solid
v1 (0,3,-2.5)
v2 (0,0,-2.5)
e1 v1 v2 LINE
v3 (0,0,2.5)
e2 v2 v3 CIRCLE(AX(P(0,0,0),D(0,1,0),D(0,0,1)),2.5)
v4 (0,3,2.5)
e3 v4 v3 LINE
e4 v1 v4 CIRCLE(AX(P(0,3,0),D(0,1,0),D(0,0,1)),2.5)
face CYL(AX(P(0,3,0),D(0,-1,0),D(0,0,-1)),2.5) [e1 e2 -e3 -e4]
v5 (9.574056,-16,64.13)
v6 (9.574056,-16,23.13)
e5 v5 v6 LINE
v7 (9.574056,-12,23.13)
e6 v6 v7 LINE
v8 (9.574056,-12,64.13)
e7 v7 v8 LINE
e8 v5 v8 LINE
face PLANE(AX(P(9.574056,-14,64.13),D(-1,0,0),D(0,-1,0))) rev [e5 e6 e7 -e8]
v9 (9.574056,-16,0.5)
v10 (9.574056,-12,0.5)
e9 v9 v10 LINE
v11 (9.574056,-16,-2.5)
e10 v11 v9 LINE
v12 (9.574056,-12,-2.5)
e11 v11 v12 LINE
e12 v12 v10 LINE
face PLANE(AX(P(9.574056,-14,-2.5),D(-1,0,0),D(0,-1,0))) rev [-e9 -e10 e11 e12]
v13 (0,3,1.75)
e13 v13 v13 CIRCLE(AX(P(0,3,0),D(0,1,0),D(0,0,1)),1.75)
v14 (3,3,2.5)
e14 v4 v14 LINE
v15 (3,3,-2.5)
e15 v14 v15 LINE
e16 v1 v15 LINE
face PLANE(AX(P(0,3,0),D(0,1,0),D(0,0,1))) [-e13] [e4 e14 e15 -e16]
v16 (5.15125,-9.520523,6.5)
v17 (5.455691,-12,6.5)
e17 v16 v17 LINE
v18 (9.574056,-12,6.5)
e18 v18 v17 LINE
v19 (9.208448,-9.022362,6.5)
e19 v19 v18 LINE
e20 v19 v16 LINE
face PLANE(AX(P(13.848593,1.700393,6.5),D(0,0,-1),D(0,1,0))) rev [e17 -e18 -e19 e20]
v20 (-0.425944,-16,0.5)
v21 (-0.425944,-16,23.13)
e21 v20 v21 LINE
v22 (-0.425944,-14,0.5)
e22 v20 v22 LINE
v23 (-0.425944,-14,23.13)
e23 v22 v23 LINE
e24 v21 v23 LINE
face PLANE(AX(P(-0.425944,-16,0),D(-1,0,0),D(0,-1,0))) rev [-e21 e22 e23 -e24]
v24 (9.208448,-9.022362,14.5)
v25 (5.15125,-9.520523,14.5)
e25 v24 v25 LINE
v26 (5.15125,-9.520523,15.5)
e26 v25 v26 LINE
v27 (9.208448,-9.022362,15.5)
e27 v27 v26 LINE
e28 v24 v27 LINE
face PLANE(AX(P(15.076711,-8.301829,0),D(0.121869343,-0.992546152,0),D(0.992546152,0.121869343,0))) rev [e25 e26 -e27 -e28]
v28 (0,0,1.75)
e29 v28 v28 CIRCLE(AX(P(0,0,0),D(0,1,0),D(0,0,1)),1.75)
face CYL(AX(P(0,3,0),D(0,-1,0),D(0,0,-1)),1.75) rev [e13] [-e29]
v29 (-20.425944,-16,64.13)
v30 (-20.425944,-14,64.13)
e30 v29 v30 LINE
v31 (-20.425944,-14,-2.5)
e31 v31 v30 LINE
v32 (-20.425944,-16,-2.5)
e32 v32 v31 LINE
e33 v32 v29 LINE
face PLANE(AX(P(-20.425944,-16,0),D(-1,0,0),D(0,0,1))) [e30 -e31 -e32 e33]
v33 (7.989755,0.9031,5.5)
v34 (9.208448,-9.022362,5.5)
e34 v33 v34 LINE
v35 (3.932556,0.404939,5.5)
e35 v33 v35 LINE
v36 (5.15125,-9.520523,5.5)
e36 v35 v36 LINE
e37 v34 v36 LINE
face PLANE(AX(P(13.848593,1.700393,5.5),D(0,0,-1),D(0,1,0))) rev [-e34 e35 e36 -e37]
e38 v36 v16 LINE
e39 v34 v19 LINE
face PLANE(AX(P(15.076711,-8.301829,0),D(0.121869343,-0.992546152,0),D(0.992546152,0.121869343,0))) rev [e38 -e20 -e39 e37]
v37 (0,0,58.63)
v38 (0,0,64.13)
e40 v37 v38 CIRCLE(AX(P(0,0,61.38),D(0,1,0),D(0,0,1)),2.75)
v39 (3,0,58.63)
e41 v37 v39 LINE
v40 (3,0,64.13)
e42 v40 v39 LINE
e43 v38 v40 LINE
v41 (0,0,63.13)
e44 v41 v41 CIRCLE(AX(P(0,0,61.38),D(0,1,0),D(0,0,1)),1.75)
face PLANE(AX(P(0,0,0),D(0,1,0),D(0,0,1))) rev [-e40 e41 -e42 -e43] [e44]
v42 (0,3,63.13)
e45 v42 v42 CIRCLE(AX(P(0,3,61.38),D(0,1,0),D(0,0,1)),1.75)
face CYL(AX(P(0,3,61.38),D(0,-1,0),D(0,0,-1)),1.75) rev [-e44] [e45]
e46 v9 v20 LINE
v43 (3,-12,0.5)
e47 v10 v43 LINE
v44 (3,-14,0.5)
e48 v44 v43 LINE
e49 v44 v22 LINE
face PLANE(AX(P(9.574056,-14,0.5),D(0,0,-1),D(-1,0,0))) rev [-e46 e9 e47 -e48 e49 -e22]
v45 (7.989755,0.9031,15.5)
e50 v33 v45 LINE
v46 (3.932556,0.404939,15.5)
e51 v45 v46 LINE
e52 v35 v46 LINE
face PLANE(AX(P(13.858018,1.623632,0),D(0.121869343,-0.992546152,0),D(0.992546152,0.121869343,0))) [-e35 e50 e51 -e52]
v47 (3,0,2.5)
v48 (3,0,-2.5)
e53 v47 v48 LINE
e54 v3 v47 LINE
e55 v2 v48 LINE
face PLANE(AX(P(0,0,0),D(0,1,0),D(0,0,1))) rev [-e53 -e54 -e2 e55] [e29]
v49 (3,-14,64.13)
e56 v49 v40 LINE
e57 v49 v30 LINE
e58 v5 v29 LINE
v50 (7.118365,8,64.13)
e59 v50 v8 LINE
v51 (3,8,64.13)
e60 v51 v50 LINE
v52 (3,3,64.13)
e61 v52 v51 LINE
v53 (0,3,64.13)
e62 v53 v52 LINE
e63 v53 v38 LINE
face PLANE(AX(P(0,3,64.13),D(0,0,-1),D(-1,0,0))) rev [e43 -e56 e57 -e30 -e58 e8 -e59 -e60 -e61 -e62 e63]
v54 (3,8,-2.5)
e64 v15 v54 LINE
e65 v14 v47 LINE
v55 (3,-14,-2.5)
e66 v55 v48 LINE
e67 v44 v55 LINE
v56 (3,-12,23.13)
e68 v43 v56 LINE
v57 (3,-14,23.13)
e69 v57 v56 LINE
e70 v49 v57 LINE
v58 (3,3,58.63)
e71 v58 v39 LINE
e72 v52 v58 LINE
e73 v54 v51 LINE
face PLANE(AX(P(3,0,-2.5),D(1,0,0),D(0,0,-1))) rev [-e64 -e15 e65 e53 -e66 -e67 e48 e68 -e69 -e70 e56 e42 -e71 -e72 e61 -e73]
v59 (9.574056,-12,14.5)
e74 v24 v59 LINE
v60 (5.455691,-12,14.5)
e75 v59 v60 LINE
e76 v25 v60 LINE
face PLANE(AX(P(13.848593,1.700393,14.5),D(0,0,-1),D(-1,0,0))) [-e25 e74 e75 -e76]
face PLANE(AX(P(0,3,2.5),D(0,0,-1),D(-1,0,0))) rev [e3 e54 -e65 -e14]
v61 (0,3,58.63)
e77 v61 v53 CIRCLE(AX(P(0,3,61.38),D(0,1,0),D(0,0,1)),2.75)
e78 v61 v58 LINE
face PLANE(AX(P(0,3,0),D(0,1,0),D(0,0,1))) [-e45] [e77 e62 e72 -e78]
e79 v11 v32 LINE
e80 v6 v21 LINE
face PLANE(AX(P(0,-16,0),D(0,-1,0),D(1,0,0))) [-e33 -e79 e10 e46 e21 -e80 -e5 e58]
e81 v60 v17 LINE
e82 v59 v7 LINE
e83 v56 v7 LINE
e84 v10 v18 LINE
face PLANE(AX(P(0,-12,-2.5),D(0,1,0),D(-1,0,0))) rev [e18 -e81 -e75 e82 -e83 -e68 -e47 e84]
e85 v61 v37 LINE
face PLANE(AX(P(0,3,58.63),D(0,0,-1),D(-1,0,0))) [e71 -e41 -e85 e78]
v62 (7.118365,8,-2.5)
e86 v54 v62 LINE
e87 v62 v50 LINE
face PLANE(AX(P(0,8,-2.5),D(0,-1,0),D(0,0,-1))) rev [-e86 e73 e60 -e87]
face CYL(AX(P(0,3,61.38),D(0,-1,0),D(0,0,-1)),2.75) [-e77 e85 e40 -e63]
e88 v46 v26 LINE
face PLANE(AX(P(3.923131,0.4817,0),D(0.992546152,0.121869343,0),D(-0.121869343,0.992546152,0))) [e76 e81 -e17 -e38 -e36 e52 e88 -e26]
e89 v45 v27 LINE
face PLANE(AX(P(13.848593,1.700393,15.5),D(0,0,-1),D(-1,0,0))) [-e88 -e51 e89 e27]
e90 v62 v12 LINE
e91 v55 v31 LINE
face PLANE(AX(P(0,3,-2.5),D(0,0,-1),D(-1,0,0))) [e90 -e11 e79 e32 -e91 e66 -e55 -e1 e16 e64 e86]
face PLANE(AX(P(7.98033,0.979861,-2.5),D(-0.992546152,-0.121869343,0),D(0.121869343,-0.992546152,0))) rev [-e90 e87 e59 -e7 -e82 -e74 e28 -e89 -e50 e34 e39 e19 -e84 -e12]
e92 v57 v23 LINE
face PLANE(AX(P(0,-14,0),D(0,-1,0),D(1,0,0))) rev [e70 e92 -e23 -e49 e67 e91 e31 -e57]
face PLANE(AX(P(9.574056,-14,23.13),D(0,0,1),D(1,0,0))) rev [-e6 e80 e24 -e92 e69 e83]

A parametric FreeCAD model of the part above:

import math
import FreeCAD as App
import Part
import Sketcher
Q = App.Units.Quantity

doc = App.newDocument("Part")
body = doc.addObject("PartDesign::Body", "Body")

sketch1 = body.newObject("Sketcher::SketchObject", "Sketch")
sketch1.AttachmentSupport = (doc.getObject("XZ_Plane"), [""])
sketch1.MapMode = "FlatFace"
sketch1.addGeometry(Part.ArcOfCircle(Part.Circle(App.Vector(0, 61.38, 0), App.Vector(0, 0, 1), 2.75), math.radians(90), math.radians(270)), False)
sketch1.addGeometry(Part.LineSegment(App.Vector(0, 64.13, 0), App.Vector(8, 64.13, 0)), False)
sketch1.addGeometry(Part.LineSegment(App.Vector(8, 64.13, 0), App.Vector(8, -2.5, 0)), False)
sketch1.addGeometry(Part.LineSegment(App.Vector(8, -2.5, 0), App.Vector(0, -2.5, 0)), False)
sketch1.addGeometry(Part.ArcOfCircle(Part.Circle(App.Vector(0, 0, 0), App.Vector(0, 0, 1), 2.5), math.radians(90), math.radians(270)), False)
sketch1.addGeometry(Part.LineSegment(App.Vector(0, 2.5, 0), App.Vector(5, 2.5, 0)), False)
sketch1.addGeometry(Part.LineSegment(App.Vector(5, 2.5, 0), App.Vector(5, 58.63, 0)), False)
sketch1.addGeometry(Part.LineSegment(App.Vector(5, 58.63, 0), App.Vector(0, 58.63, 0)), False)
sketch1.addGeometry(Part.ArcOfCircle(Part.Circle(App.Vector(0, 61.38, 0), App.Vector(0, 0, 1), 1.75), math.radians(0), math.radians(90)), False)
sketch1.addGeometry(Part.ArcOfCircle(Part.Circle(App.Vector(0, 61.38, 0), App.Vector(0, 0, 1), 1.75), math.radians(90), math.radians(270)), False)
sketch1.addGeometry(Part.ArcOfCircle(Part.Circle(App.Vector(0, 61.38, 0), App.Vector(0, 0, 1), 1.75), math.radians(-90), math.radians(0)), False)
sketch1.addGeometry(Part.ArcOfCircle(Part.Circle(App.Vector(0, 0, 0), App.Vector(0, 0, 1), 1.75), math.radians(0), math.radians(90)), False)
sketch1.addGeometry(Part.ArcOfCircle(Part.Circle(App.Vector(0, 0, 0), App.Vector(0, 0, 1), 1.75), math.radians(90), math.radians(270)), False)
sketch1.addGeometry(Part.ArcOfCircle(Part.Circle(App.Vector(0, 0, 0), App.Vector(0, 0, 1), 1.75), math.radians(-90), math.radians(0)), False)
sketch1.addConstraint(Sketcher.Constraint("Tangent", 0, 1, 1, 1))
sketch1.addConstraint(Sketcher.Constraint("Coincident", 1, 2, 2, 1))
sketch1.addConstraint(Sketcher.Constraint("Coincident", 2, 2, 3, 1))
sketch1.addConstraint(Sketcher.Constraint("Tangent", 3, 2, 4, 2))
sketch1.addConstraint(Sketcher.Constraint("Tangent", 4, 1, 5, 1))
sketch1.addConstraint(Sketcher.Constraint("Coincident", 5, 2, 6, 1))
sketch1.addConstraint(Sketcher.Constraint("Coincident", 6, 2, 7, 1))
sketch1.addConstraint(Sketcher.Constraint("Tangent", 7, 2, 0, 2))
sketch1.addConstraint(Sketcher.Constraint("Tangent", 8, 2, 9, 1))
sketch1.addConstraint(Sketcher.Constraint("Tangent", 9, 2, 10, 1))
sketch1.addConstraint(Sketcher.Constraint("Tangent", 10, 2, 8, 1))
sketch1.addConstraint(Sketcher.Constraint("Tangent", 11, 2, 12, 1))
sketch1.addConstraint(Sketcher.Constraint("Tangent", 12, 2, 13, 1))
sketch1.addConstraint(Sketcher.Constraint("Tangent", 13, 2, 11, 1))
sketch1.addConstraint(Sketcher.Constraint("Horizontal", 1))
sketch1.addConstraint(Sketcher.Constraint("Vertical", 2))
sketch1.addConstraint(Sketcher.Constraint("Horizontal", 3))
sketch1.addConstraint(Sketcher.Constraint("Horizontal", 5))
sketch1.addConstraint(Sketcher.Constraint("Vertical", 6))
sketch1.addConstraint(Sketcher.Constraint("Horizontal", 7))
sketch1.addConstraint(Sketcher.Constraint("Coincident", 4, 3, -1, 1))
sketch1.addConstraint(Sketcher.Constraint("Coincident", 11, 3, -1, 1))
sketch1.addConstraint(Sketcher.Constraint("Coincident", 8, 3, 0, 3))
sketch1.addConstraint(Sketcher.Constraint("Equal", 10, 11))
sketch1.addConstraint(Sketcher.Constraint("PointOnObject", 0, 3, -2))
sketch1.addConstraint(Sketcher.Constraint("PointOnObject", 8, 2, -2))
sketch1.addConstraint(Sketcher.Constraint("PointOnObject", 9, 2, -2))
sketch1.addConstraint(Sketcher.Constraint("PointOnObject", 11, 2, -2))
sketch1.addConstraint(Sketcher.Constraint("PointOnObject", 12, 2, -2))
sketch1.addConstraint(Sketcher.Constraint("PointOnObject", 13, 2, -1))
sketch1.addConstraint(Sketcher.Constraint("Horizontal", 9, 3, 10, 2))
sketch1.addConstraint(Sketcher.Constraint("Radius", 4, 2.5))
sketch1.addConstraint(Sketcher.Constraint("DistanceX", 1, 1, 1, 2, 8.0))
sketch1.addConstraint(Sketcher.Constraint("DistanceX", 5, 1, 5, 2, 5.0))
sketch1.addConstraint(Sketcher.Constraint("Radius", 0, 2.75))
sketch1.addConstraint(Sketcher.Constraint("Radius", 8, 1.75))
sketch1.addConstraint(Sketcher.Constraint("DistanceY", 2, 2, 2, 1, 66.63))
pad1 = body.newObject("PartDesign::Pad", "Pad")
pad1.Profile = sketch1
pad1.Length = 3
pad1.Reversed = True

sketch2 = body.newObject("Sketcher::SketchObject", "Sketch001")
sketch2.AttachmentSupport = (doc.getObject("XY_Plane"), [""])
sketch2.MapMode = "FlatFace"
sketch2.AttachmentOffset = App.Placement(App.Vector(0, 0, 64.13), App.Rotation())
sketch2.addGeometry(Part.LineSegment(App.Vector(8, 3, 0), App.Vector(7.118365, 8, 0)), False)
sketch2.addGeometry(Part.LineSegment(App.Vector(7.118365, 8, 0), App.Vector(3, 8, 0)), False)
sketch2.addGeometry(Part.LineSegment(App.Vector(3, 8, 0), App.Vector(3, -12, 0)), False)
sketch2.addGeometry(Part.LineSegment(App.Vector(3, -12, 0), App.Vector(10.644905, -12, 0)), False)
sketch2.addGeometry(Part.LineSegment(App.Vector(10.644905, -12, 0), App.Vector(8, 3, 0)), False)
sketch2.addConstraint(Sketcher.Constraint("Coincident", 0, 2, 1, 1))
sketch2.addConstraint(Sketcher.Constraint("Coincident", 1, 2, 2, 1))
sketch2.addConstraint(Sketcher.Constraint("Coincident", 2, 2, 3, 1))
sketch2.addConstraint(Sketcher.Constraint("Coincident", 3, 2, 4, 1))
sketch2.addConstraint(Sketcher.Constraint("Coincident", 4, 2, 0, 1))
sketch2.addConstraint(Sketcher.Constraint("Horizontal", 1))
sketch2.addConstraint(Sketcher.Constraint("Vertical", 2))
sketch2.addConstraint(Sketcher.Constraint("Horizontal", 3))
sketch2.addConstraint(Sketcher.Constraint("Parallel", 0, 4))
sketch2.addConstraint(Sketcher.Constraint("DistanceY", 2, 2, 2, 1, 20.0))
sketch2.addConstraint(Sketcher.Constraint("Angle", 0, Q("100 deg")))
sketch2.addConstraint(Sketcher.Constraint("DistanceY", -1, 1, 0, 2, 8.0))
sketch2.addConstraint(Sketcher.Constraint("DistanceX", -1, 1, 1, 2, 3.0))
sketch2.addConstraint(Sketcher.Constraint("DistanceX", -1, 1, 4, 2, 8.0))
sketch2.addConstraint(Sketcher.Constraint("DistanceY", -1, 1, 4, 2, 3.0))
pad2 = body.newObject("PartDesign::Pad", "Pad001")
pad2.Profile = sketch2
pad2.Length = 66.63
pad2.Reversed = True

sketch3 = body.newObject("Sketcher::SketchObject", "Sketch002")
sketch3.AttachmentSupport = (doc.getObject("XY_Plane"), [""])
sketch3.MapMode = "FlatFace"
sketch3.AttachmentOffset = App.Placement(App.Vector(0, 0, 64.13), App.Rotation())
sketch3.addGeometry(Part.LineSegment(App.Vector(9.574056, -12, 0), App.Vector(10.468021, -13.888439, 0)), False)
sketch3.addGeometry(Part.LineSegment(App.Vector(10.468021, -13.888439, 0), App.Vector(13.179201, -12.892023, 0)), False)
sketch3.addGeometry(Part.LineSegment(App.Vector(13.179201, -12.892023, 0), App.Vector(7.997987, 8.163018, 0)), False)
sketch3.addGeometry(Part.LineSegment(App.Vector(7.997987, 8.163018, 0), App.Vector(7.118365, 8, 0)), False)
sketch3.addGeometry(Part.LineSegment(App.Vector(7.118365, 8, 0), App.Vector(9.574056, -12, 0)), False)
sketch3.addConstraint(Sketcher.Constraint("Coincident", 0, 2, 1, 1))
sketch3.addConstraint(Sketcher.Constraint("Coincident", 1, 2, 2, 1))
sketch3.addConstraint(Sketcher.Constraint("Coincident", 2, 2, 3, 1))
sketch3.addConstraint(Sketcher.Constraint("Coincident", 3, 2, 4, 1))
sketch3.addConstraint(Sketcher.Constraint("Coincident", 4, 2, 0, 1))
sketch3.addConstraint(Sketcher.Constraint("Angle", 4, Q("-83 deg")))
sketch3.addConstraint(Sketcher.Constraint("DistanceY", -1, 1, 3, 2, 8.0))
sketch3.addConstraint(Sketcher.Constraint("DistanceY", 4, 2, -1, 1, 12.0))
sketch3.addConstraint(Sketcher.Constraint("Distance", 3, 0.8946))
sketch3.addConstraint(Sketcher.Constraint("DistanceX", -1, 1, 1, 2, 13.179201))
sketch3.addConstraint(Sketcher.Constraint("Distance", 0, 2.089348))
sketch3.addConstraint(Sketcher.Constraint("DistanceX", -1, 1, 0, 2, 10.468021))
sketch3.addConstraint(Sketcher.Constraint("DistanceY", 0, 2, -1, 1, 13.888439))
sketch3.addConstraint(Sketcher.Constraint("DistanceY", 1, 2, 2, 2, 21.055041))
sketch3.addConstraint(Sketcher.Constraint("DistanceX", 3, 2, 2, 2, 0.879622))
pocket1 = body.newObject("PartDesign::Pocket", "Pocket")
pocket1.Profile = sketch3
pocket1.Type = "ThroughAll"

sketch4 = body.newObject("Sketcher::SketchObject", "Sketch003")
sketch4.Placement = App.Placement(App.Vector(3.923131, 0.4817, 0), App.Rotation(App.Vector(0, 0, -1), App.Vector(-0.121869343, 0.992546152, 0), App.Vector(0.992546152, 0.121869343, 0), "ZXY"))
sketch4.addGeometry(Part.LineSegment(App.Vector(-5.5, -10.077338, 0), App.Vector(-5.5, -0.077338, 0)), False)
sketch4.addGeometry(Part.LineSegment(App.Vector(-5.5, -0.077338, 0), App.Vector(-15.5, -0.077338, 0)), False)
sketch4.addGeometry(Part.LineSegment(App.Vector(-15.5, -0.077338, 0), App.Vector(-15.5, -10.077338, 0)), False)
sketch4.addGeometry(Part.LineSegment(App.Vector(-15.5, -10.077338, 0), App.Vector(-14.5, -10.077338, 0)), False)
sketch4.addGeometry(Part.LineSegment(App.Vector(-14.5, -10.077338, 0), App.Vector(-14.5, -13.077338, 0)), False)
sketch4.addGeometry(Part.LineSegment(App.Vector(-14.5, -13.077338, 0), App.Vector(-6.5, -13.077338, 0)), False)
sketch4.addGeometry(Part.LineSegment(App.Vector(-6.5, -13.077338, 0), App.Vector(-6.5, -10.077338, 0)), False)
sketch4.addGeometry(Part.LineSegment(App.Vector(-6.5, -10.077338, 0), App.Vector(-5.5, -10.077338, 0)), False)
sketch4.addConstraint(Sketcher.Constraint("Coincident", 0, 2, 1, 1))
sketch4.addConstraint(Sketcher.Constraint("Coincident", 1, 2, 2, 1))
sketch4.addConstraint(Sketcher.Constraint("Coincident", 2, 2, 3, 1))
sketch4.addConstraint(Sketcher.Constraint("Coincident", 3, 2, 4, 1))
sketch4.addConstraint(Sketcher.Constraint("Coincident", 4, 2, 5, 1))
sketch4.addConstraint(Sketcher.Constraint("Coincident", 5, 2, 6, 1))
sketch4.addConstraint(Sketcher.Constraint("Coincident", 6, 2, 7, 1))
sketch4.addConstraint(Sketcher.Constraint("Coincident", 7, 2, 0, 1))
sketch4.addConstraint(Sketcher.Constraint("Vertical", 0))
sketch4.addConstraint(Sketcher.Constraint("Horizontal", 1))
sketch4.addConstraint(Sketcher.Constraint("Vertical", 2))
sketch4.addConstraint(Sketcher.Constraint("Horizontal", 3))
sketch4.addConstraint(Sketcher.Constraint("Vertical", 4))
sketch4.addConstraint(Sketcher.Constraint("Horizontal", 5))
sketch4.addConstraint(Sketcher.Constraint("Vertical", 6))
sketch4.addConstraint(Sketcher.Constraint("Horizontal", 7))
sketch4.addConstraint(Sketcher.Constraint("Horizontal", 3, 2, 6, 2))
sketch4.addConstraint(Sketcher.Constraint("Equal", 3, 7))
sketch4.addConstraint(Sketcher.Constraint("Equal", 1, 0))
sketch4.addConstraint(Sketcher.Constraint("DistanceX", 1, 2, 1, 1, 10.0))
sketch4.addConstraint(Sketcher.Constraint("DistanceX", 3, 1, 3, 2, 1.0))
sketch4.addConstraint(Sketcher.Constraint("DistanceY", 4, 2, 4, 1, 3.0))
sketch4.addConstraint(Sketcher.Constraint("DistanceX", 0, 2, -1, 1, 5.5))
sketch4.addConstraint(Sketcher.Constraint("DistanceY", 0, 2, -1, 1, 0.077338))
pocket2 = body.newObject("PartDesign::Pocket", "Pocket001")
pocket2.Profile = sketch4
pocket2.Length = 10
pocket2.Reversed = True

sketch5 = body.newObject("Sketcher::SketchObject", "Sketch004")
sketch5.AttachmentSupport = (doc.getObject("XZ_Plane"), [""])
sketch5.MapMode = "FlatFace"
sketch5.AttachmentOffset = App.Placement(App.Vector(0, 0, 12), App.Rotation())
sketch5.addGeometry(Part.LineSegment(App.Vector(9.574056, 23.13, 0), App.Vector(9.574056, 64.13, 0)), False)
sketch5.addGeometry(Part.LineSegment(App.Vector(9.574056, 64.13, 0), App.Vector(3, 64.13, 0)), False)
sketch5.addGeometry(Part.LineSegment(App.Vector(3, 64.13, 0), App.Vector(3, 23.13, 0)), False)
sketch5.addGeometry(Part.LineSegment(App.Vector(3, 23.13, 0), App.Vector(9.574056, 23.13, 0)), False)
sketch5.addGeometry(Part.LineSegment(App.Vector(9.574056, -2.5, 0), App.Vector(9.574056, 0.5, 0)), False)
sketch5.addGeometry(Part.LineSegment(App.Vector(9.574056, 0.5, 0), App.Vector(3, 0.5, 0)), False)
sketch5.addGeometry(Part.LineSegment(App.Vector(3, 0.5, 0), App.Vector(3, -2.5, 0)), False)
sketch5.addGeometry(Part.LineSegment(App.Vector(3, -2.5, 0), App.Vector(9.574056, -2.5, 0)), False)
sketch5.addConstraint(Sketcher.Constraint("Coincident", 0, 2, 1, 1))
sketch5.addConstraint(Sketcher.Constraint("Coincident", 1, 2, 2, 1))
sketch5.addConstraint(Sketcher.Constraint("Coincident", 2, 2, 3, 1))
sketch5.addConstraint(Sketcher.Constraint("Coincident", 3, 2, 0, 1))
sketch5.addConstraint(Sketcher.Constraint("Coincident", 4, 2, 5, 1))
sketch5.addConstraint(Sketcher.Constraint("Coincident", 5, 2, 6, 1))
sketch5.addConstraint(Sketcher.Constraint("Coincident", 6, 2, 7, 1))
sketch5.addConstraint(Sketcher.Constraint("Coincident", 7, 2, 4, 1))
sketch5.addConstraint(Sketcher.Constraint("Vertical", 0))
sketch5.addConstraint(Sketcher.Constraint("Horizontal", 1))
sketch5.addConstraint(Sketcher.Constraint("Vertical", 2))
sketch5.addConstraint(Sketcher.Constraint("Horizontal", 3))
sketch5.addConstraint(Sketcher.Constraint("Vertical", 4))
sketch5.addConstraint(Sketcher.Constraint("Horizontal", 5))
sketch5.addConstraint(Sketcher.Constraint("Vertical", 6))
sketch5.addConstraint(Sketcher.Constraint("Horizontal", 7))
sketch5.addConstraint(Sketcher.Constraint("Vertical", 3, 2, 4, 2))
sketch5.addConstraint(Sketcher.Constraint("Vertical", 2, 2, 5, 2))
sketch5.addConstraint(Sketcher.Constraint("DistanceY", 0, 1, 0, 2, 41.0))
sketch5.addConstraint(Sketcher.Constraint("DistanceY", 4, 1, 4, 2, 3.0))
sketch5.addConstraint(Sketcher.Constraint("DistanceX", -1, 1, 1, 2, 3.0))
sketch5.addConstraint(Sketcher.Constraint("DistanceY", -1, 1, 4, 2, 0.5))
sketch5.addConstraint(Sketcher.Constraint("DistanceY", -1, 1, 0, 2, 64.13))
sketch5.addConstraint(Sketcher.Constraint("DistanceX", 1, 2, 1, 1, 6.574056))
pad3 = body.newObject("PartDesign::Pad", "Pad002")
pad3.Profile = sketch5
pad3.Length = 2

sketch6 = body.newObject("Sketcher::SketchObject", "Sketch005")
sketch6.AttachmentSupport = (doc.getObject("XZ_Plane"), [""])
sketch6.MapMode = "FlatFace"
sketch6.AttachmentOffset = App.Placement(App.Vector(0, 0, 14), App.Rotation())
sketch6.addGeometry(Part.LineSegment(App.Vector(-0.425944, 0.5, 0), App.Vector(-0.425944, 23.13, 0)), False)
sketch6.addGeometry(Part.LineSegment(App.Vector(-0.425944, 23.13, 0), App.Vector(9.574056, 23.13, 0)), False)
sketch6.addGeometry(Part.LineSegment(App.Vector(9.574056, 23.13, 0), App.Vector(9.574056, 64.13, 0)), False)
sketch6.addGeometry(Part.LineSegment(App.Vector(9.574056, 64.13, 0), App.Vector(-20.425944, 64.13, 0)), False)
sketch6.addGeometry(Part.LineSegment(App.Vector(-20.425944, 64.13, 0), App.Vector(-20.425944, -2.5, 0)), False)
sketch6.addGeometry(Part.LineSegment(App.Vector(-20.425944, -2.5, 0), App.Vector(9.574056, -2.5, 0)), False)
sketch6.addGeometry(Part.LineSegment(App.Vector(9.574056, -2.5, 0), App.Vector(9.574056, 0.5, 0)), False)
sketch6.addGeometry(Part.LineSegment(App.Vector(9.574056, 0.5, 0), App.Vector(-0.425944, 0.5, 0)), False)
sketch6.addConstraint(Sketcher.Constraint("Coincident", 0, 2, 1, 1))
sketch6.addConstraint(Sketcher.Constraint("Coincident", 1, 2, 2, 1))
sketch6.addConstraint(Sketcher.Constraint("Coincident", 2, 2, 3, 1))
sketch6.addConstraint(Sketcher.Constraint("Coincident", 3, 2, 4, 1))
sketch6.addConstraint(Sketcher.Constraint("Coincident", 4, 2, 5, 1))
sketch6.addConstraint(Sketcher.Constraint("Coincident", 5, 2, 6, 1))
sketch6.addConstraint(Sketcher.Constraint("Coincident", 6, 2, 7, 1))
sketch6.addConstraint(Sketcher.Constraint("Coincident", 7, 2, 0, 1))
sketch6.addConstraint(Sketcher.Constraint("Vertical", 0))
sketch6.addConstraint(Sketcher.Constraint("Horizontal", 1))
sketch6.addConstraint(Sketcher.Constraint("Vertical", 2))
sketch6.addConstraint(Sketcher.Constraint("Horizontal", 3))
sketch6.addConstraint(Sketcher.Constraint("Vertical", 4))
sketch6.addConstraint(Sketcher.Constraint("Horizontal", 5))
sketch6.addConstraint(Sketcher.Constraint("Vertical", 6))
sketch6.addConstraint(Sketcher.Constraint("Horizontal", 7))
sketch6.addConstraint(Sketcher.Constraint("Vertical", 2, 2, 5, 2))
sketch6.addConstraint(Sketcher.Constraint("DistanceX", 1, 1, 1, 2, 10.0))
sketch6.addConstraint(Sketcher.Constraint("DistanceX", 3, 2, 3, 1, 30.0))
sketch6.addConstraint(Sketcher.Constraint("DistanceY", 2, 1, 2, 2, 41.0))
sketch6.addConstraint(Sketcher.Constraint("DistanceY", 6, 1, 6, 2, 3.0))
sketch6.addConstraint(Sketcher.Constraint("DistanceY", 0, 1, 0, 2, 22.63))
sketch6.addConstraint(Sketcher.Constraint("DistanceY", 4, 2, -1, 1, 2.5))
sketch6.addConstraint(Sketcher.Constraint("DistanceX", 0, 2, -1, 1, 0.425944))
pad4 = body.newObject("PartDesign::Pad", "Pad003")
pad4.Profile = sketch6
pad4.Length = 2

doc.recompute()
